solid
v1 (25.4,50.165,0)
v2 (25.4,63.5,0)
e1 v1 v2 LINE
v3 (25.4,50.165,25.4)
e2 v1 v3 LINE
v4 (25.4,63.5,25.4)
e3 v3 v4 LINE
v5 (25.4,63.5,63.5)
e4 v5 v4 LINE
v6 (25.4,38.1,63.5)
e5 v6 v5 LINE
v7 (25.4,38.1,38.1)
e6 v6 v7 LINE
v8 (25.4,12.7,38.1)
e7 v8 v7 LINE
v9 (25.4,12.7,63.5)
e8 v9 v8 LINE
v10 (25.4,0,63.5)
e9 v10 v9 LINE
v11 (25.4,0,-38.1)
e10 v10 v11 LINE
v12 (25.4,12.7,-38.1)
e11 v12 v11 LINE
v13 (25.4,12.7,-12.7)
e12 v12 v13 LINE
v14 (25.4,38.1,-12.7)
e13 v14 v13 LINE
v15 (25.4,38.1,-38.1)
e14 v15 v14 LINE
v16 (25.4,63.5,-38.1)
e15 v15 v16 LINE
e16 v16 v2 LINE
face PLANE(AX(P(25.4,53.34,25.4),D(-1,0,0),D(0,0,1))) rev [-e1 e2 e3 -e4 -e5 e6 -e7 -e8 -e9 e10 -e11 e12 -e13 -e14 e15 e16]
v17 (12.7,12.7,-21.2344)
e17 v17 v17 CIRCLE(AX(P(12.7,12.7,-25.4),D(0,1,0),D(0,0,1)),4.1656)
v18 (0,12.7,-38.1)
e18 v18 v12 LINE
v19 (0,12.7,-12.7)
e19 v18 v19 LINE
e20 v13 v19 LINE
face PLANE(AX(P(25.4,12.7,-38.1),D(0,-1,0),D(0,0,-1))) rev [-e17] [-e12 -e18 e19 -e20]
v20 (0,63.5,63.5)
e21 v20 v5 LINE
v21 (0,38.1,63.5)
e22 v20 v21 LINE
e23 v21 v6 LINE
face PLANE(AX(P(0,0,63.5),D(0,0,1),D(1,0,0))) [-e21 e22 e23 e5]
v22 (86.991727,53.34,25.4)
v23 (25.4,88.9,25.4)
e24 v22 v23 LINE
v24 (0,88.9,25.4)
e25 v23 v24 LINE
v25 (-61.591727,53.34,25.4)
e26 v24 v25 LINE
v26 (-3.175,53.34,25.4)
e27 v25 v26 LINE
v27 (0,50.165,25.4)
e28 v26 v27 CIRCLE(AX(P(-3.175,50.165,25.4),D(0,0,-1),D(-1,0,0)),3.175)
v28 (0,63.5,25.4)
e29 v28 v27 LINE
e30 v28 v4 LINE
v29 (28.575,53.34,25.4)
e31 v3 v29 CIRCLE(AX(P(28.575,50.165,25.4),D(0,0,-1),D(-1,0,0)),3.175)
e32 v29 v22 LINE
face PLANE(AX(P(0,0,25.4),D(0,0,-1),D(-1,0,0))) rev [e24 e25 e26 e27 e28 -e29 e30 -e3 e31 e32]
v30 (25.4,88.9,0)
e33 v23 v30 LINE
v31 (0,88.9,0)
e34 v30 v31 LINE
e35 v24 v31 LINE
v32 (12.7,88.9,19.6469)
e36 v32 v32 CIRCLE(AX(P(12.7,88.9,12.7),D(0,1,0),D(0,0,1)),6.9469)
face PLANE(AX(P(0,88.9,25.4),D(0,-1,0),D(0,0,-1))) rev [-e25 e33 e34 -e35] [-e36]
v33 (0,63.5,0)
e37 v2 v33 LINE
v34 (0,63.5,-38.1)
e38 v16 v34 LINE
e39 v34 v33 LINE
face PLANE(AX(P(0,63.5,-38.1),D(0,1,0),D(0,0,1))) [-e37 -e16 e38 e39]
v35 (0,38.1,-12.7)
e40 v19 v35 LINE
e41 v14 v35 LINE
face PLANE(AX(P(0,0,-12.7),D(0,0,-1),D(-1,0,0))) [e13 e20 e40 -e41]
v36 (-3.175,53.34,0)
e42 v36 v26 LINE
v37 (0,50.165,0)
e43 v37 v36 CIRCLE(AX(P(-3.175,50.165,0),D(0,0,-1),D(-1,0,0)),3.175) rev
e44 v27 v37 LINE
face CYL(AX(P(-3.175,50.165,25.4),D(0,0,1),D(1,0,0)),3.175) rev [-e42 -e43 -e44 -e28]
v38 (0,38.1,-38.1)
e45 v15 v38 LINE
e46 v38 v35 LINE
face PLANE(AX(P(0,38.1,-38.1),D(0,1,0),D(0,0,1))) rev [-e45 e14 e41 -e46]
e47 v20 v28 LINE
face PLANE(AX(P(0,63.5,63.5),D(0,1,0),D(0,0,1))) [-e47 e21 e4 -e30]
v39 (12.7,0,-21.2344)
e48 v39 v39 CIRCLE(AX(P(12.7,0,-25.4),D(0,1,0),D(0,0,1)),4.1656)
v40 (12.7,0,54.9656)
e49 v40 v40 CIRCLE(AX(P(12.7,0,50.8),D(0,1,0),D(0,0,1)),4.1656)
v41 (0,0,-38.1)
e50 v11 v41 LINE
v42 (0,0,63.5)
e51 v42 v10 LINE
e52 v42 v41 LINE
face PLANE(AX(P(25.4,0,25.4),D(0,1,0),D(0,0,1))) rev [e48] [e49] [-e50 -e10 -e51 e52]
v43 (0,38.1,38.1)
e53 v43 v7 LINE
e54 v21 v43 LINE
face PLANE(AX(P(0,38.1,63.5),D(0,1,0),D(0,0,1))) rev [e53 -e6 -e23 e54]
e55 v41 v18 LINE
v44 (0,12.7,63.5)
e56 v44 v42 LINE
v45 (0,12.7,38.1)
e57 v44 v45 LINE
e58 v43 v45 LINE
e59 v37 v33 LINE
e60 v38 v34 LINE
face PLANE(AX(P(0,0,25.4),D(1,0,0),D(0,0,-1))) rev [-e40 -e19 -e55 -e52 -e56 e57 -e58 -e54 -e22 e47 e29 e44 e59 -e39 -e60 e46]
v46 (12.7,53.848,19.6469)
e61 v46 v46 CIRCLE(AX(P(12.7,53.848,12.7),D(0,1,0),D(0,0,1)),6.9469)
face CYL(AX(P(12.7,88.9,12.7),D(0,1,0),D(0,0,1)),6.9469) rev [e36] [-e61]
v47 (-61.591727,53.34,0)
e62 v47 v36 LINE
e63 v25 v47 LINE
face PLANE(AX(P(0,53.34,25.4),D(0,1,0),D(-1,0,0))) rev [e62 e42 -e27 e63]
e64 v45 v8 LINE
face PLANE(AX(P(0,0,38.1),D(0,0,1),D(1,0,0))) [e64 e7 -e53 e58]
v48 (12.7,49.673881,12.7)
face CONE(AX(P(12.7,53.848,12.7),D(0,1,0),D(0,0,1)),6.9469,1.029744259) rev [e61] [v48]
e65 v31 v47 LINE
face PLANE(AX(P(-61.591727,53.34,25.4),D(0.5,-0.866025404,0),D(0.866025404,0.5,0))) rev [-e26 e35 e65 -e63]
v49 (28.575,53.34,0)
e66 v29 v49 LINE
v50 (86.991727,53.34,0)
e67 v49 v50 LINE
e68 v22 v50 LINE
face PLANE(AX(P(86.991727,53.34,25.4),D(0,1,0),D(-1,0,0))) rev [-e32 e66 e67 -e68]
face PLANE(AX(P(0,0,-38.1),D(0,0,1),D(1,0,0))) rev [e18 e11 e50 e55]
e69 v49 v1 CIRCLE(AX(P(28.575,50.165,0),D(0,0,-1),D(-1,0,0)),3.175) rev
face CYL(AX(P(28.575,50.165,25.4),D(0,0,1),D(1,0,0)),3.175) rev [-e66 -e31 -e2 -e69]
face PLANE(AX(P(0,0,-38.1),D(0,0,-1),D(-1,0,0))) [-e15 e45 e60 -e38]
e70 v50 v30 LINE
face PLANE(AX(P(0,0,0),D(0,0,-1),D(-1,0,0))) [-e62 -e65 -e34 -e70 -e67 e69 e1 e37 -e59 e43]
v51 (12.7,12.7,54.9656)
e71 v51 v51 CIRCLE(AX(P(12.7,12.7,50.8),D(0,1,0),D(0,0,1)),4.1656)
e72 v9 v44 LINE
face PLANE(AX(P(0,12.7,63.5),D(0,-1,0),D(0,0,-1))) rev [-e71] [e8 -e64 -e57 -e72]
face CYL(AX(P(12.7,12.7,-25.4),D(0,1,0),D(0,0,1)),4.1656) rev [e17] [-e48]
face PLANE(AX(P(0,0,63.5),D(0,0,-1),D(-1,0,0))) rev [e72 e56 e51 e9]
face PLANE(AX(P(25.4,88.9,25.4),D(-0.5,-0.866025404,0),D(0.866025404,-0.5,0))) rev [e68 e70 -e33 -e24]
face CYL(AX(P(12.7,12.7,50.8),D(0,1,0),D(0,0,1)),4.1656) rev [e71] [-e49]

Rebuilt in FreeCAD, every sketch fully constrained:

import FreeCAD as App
import Part
import Sketcher

V = App.Vector
Q = App.Units.Quantity


def edges_at(feature, points):
    """Names of the edges that pass closest to the given points."""
    edges = feature.Shape.Edges
    near = lambda p: min(range(len(edges)), key=lambda i: edges[i].distToShape(Part.Vertex(*p))[0])
    return sorted({f"Edge{near(p) + 1}" for p in points})


def add_polygon(sketch, points):
    """Adds a closed chain of lines whose ends are joined by coincident constraints."""
    first, n = sketch.GeometryCount, len(points)
    for a, b in zip(points, points[1:] + points[:1]):
        sketch.addGeometry(Part.LineSegment(App.Vector(*a, 0), App.Vector(*b, 0)), False)
    for i in range(n):
        sketch.addConstraint(Sketcher.Constraint("Coincident", first + i, 2, first + (i + 1) % n, 1))

doc = App.newDocument("Part")
body = doc.addObject("PartDesign::Body", "Body")

# Sketch on XY plane
sketch1 = doc.addObject("Sketcher::SketchObject", "Sketch")
body.addObject(sketch1)
sketch1.AttachmentSupport = (doc.XY_Plane, [""])
sketch1.MapMode = "FlatFace"
add_polygon(sketch1, [(0, 53.34), (0, 0), (25.4, 0), (25.4, 53.34), (86.991727, 53.34), (25.4, 88.9), (0, 88.9), (-61.591727, 53.34)])  # lines 0-7
sketch1.addConstraint([
    Sketcher.Constraint("Vertical", 0),
    Sketcher.Constraint("Horizontal", 1),
    Sketcher.Constraint("Vertical", 2),
    Sketcher.Constraint("Horizontal", 3),
    Sketcher.Constraint("Horizontal", 5),
    Sketcher.Constraint("Horizontal", 7),
    Sketcher.Constraint("Coincident", 0, 2, -1, 1),
    Sketcher.Constraint("PointOnObject", 5, 2, -2),
    Sketcher.Constraint("Horizontal", 3, 2, 6, 2),
    Sketcher.Constraint("Vertical", 2, 2, 4, 2),
    Sketcher.Constraint("Equal", 3, 7),
    Sketcher.Constraint("DistanceX", 1, 1, 1, 2, Q("1 in")),
    Sketcher.Constraint("DistanceY", 0, 2, 0, 1, Q("2.1 in")),
    Sketcher.Constraint("Angle", 4, Q("150 deg")),
    Sketcher.Constraint("Distance", 4, Q("2.8 in")),
])
pad1 = doc.addObject("PartDesign::Pad", "Pad")
body.addObject(pad1)
pad1.Profile = sketch1
pad1.Length = Q("1 in")

# Sketch on XY plane
sketch2 = doc.addObject("Sketcher::SketchObject", "Sketch001")
body.addObject(sketch2)
sketch2.AttachmentSupport = (doc.XY_Plane, [""])
sketch2.MapMode = "FlatFace"
sketch2.AttachmentOffset = App.Placement(V(0, 0, 1 * 25.4), App.Rotation())
add_polygon(sketch2, [(0, 12.7), (0, 0), (25.4, 0), (25.4, 12.7)])  # lines 0-3
sketch2.addConstraint([
    Sketcher.Constraint("Vertical", 0),
    Sketcher.Constraint("Horizontal", 1),
    Sketcher.Constraint("Vertical", 2),
    Sketcher.Constraint("Horizontal", 3),
    Sketcher.Constraint("Coincident", 0, 2, -1, 1),
    Sketcher.Constraint("DistanceX", 1, 1, 1, 2, Q("1 in")),
    Sketcher.Constraint("DistanceY", 0, 2, 0, 1, Q("0.5 in")),
])
pad2 = doc.addObject("PartDesign::Pad", "Pad001")
body.addObject(pad2)
pad2.Profile = sketch2
pad2.Length = Q("1.5 in")

# Sketch on XY plane
sketch3 = doc.addObject("Sketcher::SketchObject", "Sketch002")
body.addObject(sketch3)
sketch3.AttachmentSupport = (doc.XY_Plane, [""])
sketch3.MapMode = "FlatFace"
add_polygon(sketch3, [(25.4, 12.7), (25.4, 0), (0, 0), (0, 12.7)])  # lines 0-3
sketch3.addConstraint([
    Sketcher.Constraint("Vertical", 0),
    Sketcher.Constraint("Horizontal", 1),
    Sketcher.Constraint("Vertical", 2),
    Sketcher.Constraint("Horizontal", 3),
    Sketcher.Constraint("Coincident", 1, 2, -1, 1),
    Sketcher.Constraint("DistanceX", 1, 2, 1, 1, Q("1 in")),
    Sketcher.Constraint("DistanceY", 0, 2, 0, 1, Q("0.5 in")),
])
pad3 = doc.addObject("PartDesign::Pad", "Pad002")
body.addObject(pad3)
pad3.Profile = sketch3
pad3.Length = Q("1.5 in")
pad3.Reversed = True

# Sketch on XZ plane
sketch4 = doc.addObject("Sketcher::SketchObject", "Sketch003")
body.addObject(sketch4)
sketch4.AttachmentSupport = (doc.XZ_Plane, [""])
sketch4.MapMode = "FlatFace"
sketch4.AttachmentOffset = App.Placement(V(0, 0, -0.5 * 25.4), App.Rotation())
sketch4.addGeometry([
    Part.Circle(V(12.7, -25.4, 0), V(0, 0, 1), 4.1656),
    Part.Circle(V(12.7, 50.8, 0), V(0, 0, 1), 4.1656),
], False)
sketch4.addConstraint([
    Sketcher.Constraint("Equal", 0, 1),
    Sketcher.Constraint("Vertical", 0, 3, 1, 3),
    Sketcher.Constraint("Diameter", 0, Q("0.328 in")),
    Sketcher.Constraint("DistanceY", 0, 3, -1, 1, Q("1 in")),
    Sketcher.Constraint("DistanceY", -1, 1, 1, 3, Q("2 in")),
    Sketcher.Constraint("DistanceX", -1, 1, 0, 3, Q("0.5 in")),
])
doc.recompute()
hole = doc.addObject("PartDesign::Hole", "Hole")
body.addObject(hole)
hole.Profile = sketch4
hole.ThreadType = "None"
hole.Diameter = Q("0.328 in")
hole.DepthType = "ThroughAll"
hole.Reversed = True

# Sketch on XZ plane
sketch5 = doc.addObject("Sketcher::SketchObject", "Sketch004")
body.addObject(sketch5)
sketch5.AttachmentSupport = (doc.XZ_Plane, [""])
sketch5.MapMode = "FlatFace"
sketch5.AttachmentOffset = App.Placement(V(0, 0, -3.5 * 25.4), App.Rotation())
sketch5.addGeometry(Part.Circle(V(12.7, 12.7, 0), V(0, 0, 1), 6.9469), False)
sketch5.addConstraint([
    Sketcher.Constraint("Diameter", 0, Q("0.547 in")),
    Sketcher.Constraint("DistanceX", -1, 1, 0, 3, Q("0.5 in")),
    Sketcher.Constraint("DistanceY", -1, 1, 0, 3, Q("0.5 in")),
])
doc.recompute()
hole2 = doc.addObject("PartDesign::Hole", "Hole001")
body.addObject(hole2)
hole2.Profile = sketch5
hole2.ThreadType = "None"
hole2.Diameter = Q("0.547 in")
hole2.DepthType = "Dimension"
hole2.Depth = Q("1.38 in")
hole2.DrillPoint = "Angled"
hole2.DrillPointAngle = 118
hole2.Reversed = True
doc.recompute()

fillet = doc.addObject("PartDesign::Fillet", "Fillet")
body.addObject(fillet)
fillet.Base = (hole2, edges_at(hole2, [(0, 53.34, 12.7), (25.4, 53.34, 12.7)]))
fillet.Radius = Q("0.125 in")

# Sketch on XY plane
sketch6 = doc.addObject("Sketcher::SketchObject", "Sketch005")
body.addObject(sketch6)
sketch6.AttachmentSupport = (doc.XY_Plane, [""])
sketch6.MapMode = "FlatFace"
sketch6.AttachmentOffset = App.Placement(V(0, 0, 1 * 25.4), App.Rotation())
add_polygon(sketch6, [(0, 38.1), (0, 12.7), (25.4, 12.7), (25.4, 38.1)])  # lines 0-3
sketch6.addConstraint([
    Sketcher.Constraint("Vertical", 0),
    Sketcher.Constraint("Horizontal", 1),
    Sketcher.Constraint("Vertical", 2),
    Sketcher.Constraint("Horizontal", 3),
    Sketcher.Constraint("PointOnObject", 0, 2, -2),
    Sketcher.Constraint("Equal", 3, 0),
    Sketcher.Constraint("DistanceX", 1, 1, 1, 2, Q("1 in")),
    Sketcher.Constraint("DistanceY", -1, 1, 0, 2, Q("0.5 in")),
])
pad4 = doc.addObject("PartDesign::Pad", "Pad003")
body.addObject(pad4)
pad4.Profile = sketch6
pad4.Length = Q("0.5 in")

# Sketch on XY plane
sketch7 = doc.addObject("Sketcher::SketchObject", "Sketch006")
body.addObject(sketch7)
sketch7.AttachmentSupport = (doc.XY_Plane, [""])
sketch7.MapMode = "FlatFace"
sketch7.AttachmentOffset = App.Placement(V(0, 0, 1 * 25.4), App.Rotation())
add_polygon(sketch7, [(0, 38.1), (25.4, 38.1), (25.4, 63.5), (0, 63.5)])  # lines 0-3
sketch7.addConstraint([
    Sketcher.Constraint("Horizontal", 0),
    Sketcher.Constraint("Vertical", 1),
    Sketcher.Constraint("Horizontal", 2),
    Sketcher.Constraint("Vertical", 3),
    Sketcher.Constraint("PointOnObject", 2, 2, -2),
    Sketcher.Constraint("Equal", 2, 1),
    Sketcher.Constraint("DistanceX", 0, 1, 0, 2, Q("1 in")),
    Sketcher.Constraint("DistanceY", -1, 1, 0, 2, Q("1.5 in")),
])
pad5 = doc.addObject("PartDesign::Pad", "Pad004")
body.addObject(pad5)
pad5.Profile = sketch7
pad5.Length = Q("1.5 in")

# Sketch on XY plane
sketch8 = doc.addObject("Sketcher::SketchObject", "Sketch007")
body.addObject(sketch8)
sketch8.AttachmentSupport = (doc.XY_Plane, [""])
sketch8.MapMode = "FlatFace"
add_polygon(sketch8, [(25.4, 38.1), (25.4, 12.7), (0, 12.7), (0, 38.1)])  # lines 0-3
sketch8.addConstraint([
    Sketcher.Constraint("Vertical", 0),
    Sketcher.Constraint("Horizontal", 1),
    Sketcher.Constraint("Vertical", 2),
    Sketcher.Constraint("Horizontal", 3),
    Sketcher.Constraint("PointOnObject", 1, 2, -2),
    Sketcher.Constraint("Equal", 3, 0),
    Sketcher.Constraint("DistanceX", 1, 2, 1, 1, Q("1 in")),
    Sketcher.Constraint("DistanceY", -1, 1, 0, 2, Q("0.5 in")),
])
pad6 = doc.addObject("PartDesign::Pad", "Pad005")
body.addObject(pad6)
pad6.Profile = sketch8
pad6.Length = Q("0.5 in")
pad6.Reversed = True

# Sketch on XY plane
sketch9 = doc.addObject("Sketcher::SketchObject", "Sketch008")
body.addObject(sketch9)
sketch9.AttachmentSupport = (doc.XY_Plane, [""])
sketch9.MapMode = "FlatFace"
add_polygon(sketch9, [(25.4, 38.1), (0, 38.1), (0, 63.5), (25.4, 63.5)])  # lines 0-3
sketch9.addConstraint([
    Sketcher.Constraint("Horizontal", 0),
    Sketcher.Constraint("Vertical", 1),
    Sketcher.Constraint("Horizontal", 2),
    Sketcher.Constraint("Vertical", 3),
    Sketcher.Constraint("PointOnObject", 0, 2, -2),
    Sketcher.Constraint("Equal", 2, 1),
    Sketcher.Constraint("DistanceX", 0, 2, 0, 1, Q("1 in")),
    Sketcher.Constraint("DistanceY", -1, 1, 0, 2, Q("1.5 in")),
])
pad7 = doc.addObject("PartDesign::Pad", "Pad006")
body.addObject(pad7)
pad7.Profile = sketch9
pad7.Length = Q("1.5 in")
pad7.Reversed = True

doc.recompute()
